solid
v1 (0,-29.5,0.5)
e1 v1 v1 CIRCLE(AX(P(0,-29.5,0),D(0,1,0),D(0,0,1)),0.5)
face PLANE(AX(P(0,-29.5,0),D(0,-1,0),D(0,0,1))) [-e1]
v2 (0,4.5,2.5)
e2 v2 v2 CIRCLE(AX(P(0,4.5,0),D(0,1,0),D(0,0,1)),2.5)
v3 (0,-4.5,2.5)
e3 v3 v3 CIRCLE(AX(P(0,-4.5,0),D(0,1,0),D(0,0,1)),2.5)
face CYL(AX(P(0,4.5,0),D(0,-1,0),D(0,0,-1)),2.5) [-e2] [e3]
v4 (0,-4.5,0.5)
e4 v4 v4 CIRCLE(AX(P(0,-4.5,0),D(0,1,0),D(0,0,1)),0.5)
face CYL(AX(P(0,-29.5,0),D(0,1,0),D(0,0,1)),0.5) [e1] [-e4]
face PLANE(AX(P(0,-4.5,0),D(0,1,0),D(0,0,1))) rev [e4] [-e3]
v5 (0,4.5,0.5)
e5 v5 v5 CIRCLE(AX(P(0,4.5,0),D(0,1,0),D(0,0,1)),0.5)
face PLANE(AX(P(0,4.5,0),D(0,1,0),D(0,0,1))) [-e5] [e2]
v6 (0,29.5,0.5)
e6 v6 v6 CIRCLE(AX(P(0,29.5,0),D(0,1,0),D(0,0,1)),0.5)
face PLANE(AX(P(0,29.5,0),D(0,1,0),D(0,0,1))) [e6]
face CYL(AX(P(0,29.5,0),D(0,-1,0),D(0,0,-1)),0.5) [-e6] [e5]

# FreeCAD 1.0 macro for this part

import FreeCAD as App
import Part
import Sketcher
Q = App.Units.Quantity

doc = App.newDocument("Part")
body = doc.addObject("PartDesign::Body", "Body")

# Sketch on XZ plane
sketch1 = doc.addObject("Sketcher::SketchObject", "Sketch")
body.addObject(sketch1)
sketch1.AttachmentSupport = (doc.XZ_Plane, [""])
sketch1.MapMode = "FlatFace"
sketch1.addGeometry(Part.Circle(App.Vector(0, 0, 0), App.Vector(0, 0, 1), 2.5), False)
sketch1.addConstraint([
    Sketcher.Constraint("Coincident", 0, 3, -1, 1),
    Sketcher.Constraint("Diameter", 0, Q("5 mm")),
])
pad1 = doc.addObject("PartDesign::Pad", "Pad")
body.addObject(pad1)
pad1.Profile = sketch1
pad1.Length = 9
pad1.Midplane = True

# Sketch on XZ plane
sketch2 = doc.addObject("Sketcher::SketchObject", "Sketch001")
body.addObject(sketch2)
sketch2.AttachmentSupport = (doc.XZ_Plane, [""])
sketch2.MapMode = "FlatFace"
sketch2.AttachmentOffset = App.Placement(App.Vector(0, 0, -4.5), App.Rotation())
sketch2.addGeometry(Part.Circle(App.Vector(0, 0, 0), App.Vector(0, 0, 1), 0.5), False)
sketch2.addConstraint([
    Sketcher.Constraint("Coincident", 0, 3, -1, 1),
    Sketcher.Constraint("Diameter", 0, Q("1 mm")),
])
pad2 = doc.addObject("PartDesign::Pad", "Pad001")
body.addObject(pad2)
pad2.Profile = sketch2
pad2.Length = 25
pad2.Reversed = True
doc.recompute()

mirrored = doc.addObject("PartDesign::Mirrored", "Mirrored")
body.addObject(mirrored)
mirrored.Originals = [pad2]
mirrored.MirrorPlane = (doc.XZ_Plane, [""])
body.Tip = mirrored

doc.recompute()
